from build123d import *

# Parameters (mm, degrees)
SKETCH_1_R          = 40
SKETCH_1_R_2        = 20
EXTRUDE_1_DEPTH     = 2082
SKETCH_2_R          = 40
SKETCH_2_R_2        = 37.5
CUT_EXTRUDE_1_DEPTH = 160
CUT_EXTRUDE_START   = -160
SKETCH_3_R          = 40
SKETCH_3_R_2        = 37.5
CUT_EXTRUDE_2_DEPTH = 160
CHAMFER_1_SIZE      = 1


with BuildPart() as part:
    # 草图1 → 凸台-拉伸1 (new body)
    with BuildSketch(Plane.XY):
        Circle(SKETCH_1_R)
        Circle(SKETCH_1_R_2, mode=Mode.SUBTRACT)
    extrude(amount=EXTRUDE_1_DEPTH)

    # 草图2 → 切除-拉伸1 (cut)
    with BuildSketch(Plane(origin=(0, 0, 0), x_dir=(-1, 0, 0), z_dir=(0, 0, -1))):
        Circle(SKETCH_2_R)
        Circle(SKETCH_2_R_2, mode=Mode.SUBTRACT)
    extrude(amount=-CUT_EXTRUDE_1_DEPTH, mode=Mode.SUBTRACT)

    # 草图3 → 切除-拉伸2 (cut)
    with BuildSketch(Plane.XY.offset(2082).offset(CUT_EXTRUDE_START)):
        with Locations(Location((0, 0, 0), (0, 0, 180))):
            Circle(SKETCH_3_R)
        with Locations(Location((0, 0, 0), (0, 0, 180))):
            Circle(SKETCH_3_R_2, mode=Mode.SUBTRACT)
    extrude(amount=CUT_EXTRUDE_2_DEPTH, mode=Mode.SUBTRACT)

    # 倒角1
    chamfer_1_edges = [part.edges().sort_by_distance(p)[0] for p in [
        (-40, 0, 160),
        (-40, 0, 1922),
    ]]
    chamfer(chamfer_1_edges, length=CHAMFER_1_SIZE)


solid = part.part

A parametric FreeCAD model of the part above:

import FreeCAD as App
import Part
import Sketcher
from FreeCAD import Vector
Q = App.Units.Quantity


def edges_at(feature, points):
    """Names of the edges that pass closest to the given points."""
    edges = feature.Shape.Edges
    near = lambda p: min(range(len(edges)), key=lambda i: edges[i].distToShape(Part.Vertex(*p))[0])
    return sorted({f"Edge{near(p) + 1}" for p in points})

doc = App.newDocument("Part")
body = doc.addObject("PartDesign::Body", "Body")

sketch1 = body.newObject("Sketcher::SketchObject", "Sketch")
sketch1.AttachmentSupport = (doc.getObject("XY_Plane"), [""])
sketch1.MapMode = "FlatFace"
sketch1.addGeometry(Part.Circle(Vector(0, 0, 0), Vector(0, 0, 1), 40), False)
sketch1.addGeometry(Part.Circle(Vector(0, 0, 0), Vector(0, 0, 1), 20), False)
sketch1.addConstraint(Sketcher.Constraint("Coincident", 0, 3, -1, 1))
sketch1.addConstraint(Sketcher.Constraint("Coincident", 1, 3, -1, 1))
sketch1.addConstraint(Sketcher.Constraint("Diameter", 0, Q("80 mm")))
sketch1.addConstraint(Sketcher.Constraint("Diameter", 1, Q("40 mm")))
pad1 = body.newObject("PartDesign::Pad", "Pad")
pad1.Profile = sketch1
pad1.Length = 2082

sketch2 = body.newObject("Sketcher::SketchObject", "Sketch001")
sketch2.AttachmentSupport = (doc.getObject("XY_Plane"), [""])
sketch2.MapMode = "FlatFace"
sketch2.addGeometry(Part.Circle(Vector(0, 0, 0), Vector(0, 0, 1), 40), False)
sketch2.addGeometry(Part.Circle(Vector(0, 0, 0), Vector(0, 0, 1), 38), False)
sketch2.addConstraint(Sketcher.Constraint("Coincident", 0, 3, -1, 1))
sketch2.addConstraint(Sketcher.Constraint("Coincident", 1, 3, -1, 1))
sketch2.addConstraint(Sketcher.Constraint("Diameter", 0, Q("80 mm")))
sketch2.addConstraint(Sketcher.Constraint("Diameter", 1, Q("75 mm")))
pocket1 = body.newObject("PartDesign::Pocket", "Pocket")
pocket1.Profile = sketch2
pocket1.Length = 160
pocket1.Reversed = True

sketch3 = body.newObject("Sketcher::SketchObject", "Sketch002")
sketch3.AttachmentSupport = (doc.getObject("XY_Plane"), [""])
sketch3.MapMode = "FlatFace"
sketch3.AttachmentOffset = App.Placement(Vector(0, 0, 1922), App.Rotation())
sketch3.addGeometry(Part.Circle(Vector(0, 0, 0), Vector(0, 0, 1), 40), False)
sketch3.addGeometry(Part.Circle(Vector(0, 0, 0), Vector(0, 0, 1), 38), False)
sketch3.addConstraint(Sketcher.Constraint("Coincident", 0, 3, -1, 1))
sketch3.addConstraint(Sketcher.Constraint("Coincident", 1, 3, -1, 1))
sketch3.addConstraint(Sketcher.Constraint("Diameter", 0, Q("80 mm")))
sketch3.addConstraint(Sketcher.Constraint("Diameter", 1, Q("75 mm")))
pocket2 = body.newObject("PartDesign::Pocket", "Pocket001")
pocket2.Profile = sketch3
pocket2.Length = 160
pocket2.Reversed = True
doc.recompute()

chamfer = body.newObject("PartDesign::Chamfer", "Chamfer")
chamfer.Base = (pocket2, edges_at(pocket2, [(-40, 0, 160), (-40, 0, 1922)]))
chamfer.Size = 1

doc.recompute()
